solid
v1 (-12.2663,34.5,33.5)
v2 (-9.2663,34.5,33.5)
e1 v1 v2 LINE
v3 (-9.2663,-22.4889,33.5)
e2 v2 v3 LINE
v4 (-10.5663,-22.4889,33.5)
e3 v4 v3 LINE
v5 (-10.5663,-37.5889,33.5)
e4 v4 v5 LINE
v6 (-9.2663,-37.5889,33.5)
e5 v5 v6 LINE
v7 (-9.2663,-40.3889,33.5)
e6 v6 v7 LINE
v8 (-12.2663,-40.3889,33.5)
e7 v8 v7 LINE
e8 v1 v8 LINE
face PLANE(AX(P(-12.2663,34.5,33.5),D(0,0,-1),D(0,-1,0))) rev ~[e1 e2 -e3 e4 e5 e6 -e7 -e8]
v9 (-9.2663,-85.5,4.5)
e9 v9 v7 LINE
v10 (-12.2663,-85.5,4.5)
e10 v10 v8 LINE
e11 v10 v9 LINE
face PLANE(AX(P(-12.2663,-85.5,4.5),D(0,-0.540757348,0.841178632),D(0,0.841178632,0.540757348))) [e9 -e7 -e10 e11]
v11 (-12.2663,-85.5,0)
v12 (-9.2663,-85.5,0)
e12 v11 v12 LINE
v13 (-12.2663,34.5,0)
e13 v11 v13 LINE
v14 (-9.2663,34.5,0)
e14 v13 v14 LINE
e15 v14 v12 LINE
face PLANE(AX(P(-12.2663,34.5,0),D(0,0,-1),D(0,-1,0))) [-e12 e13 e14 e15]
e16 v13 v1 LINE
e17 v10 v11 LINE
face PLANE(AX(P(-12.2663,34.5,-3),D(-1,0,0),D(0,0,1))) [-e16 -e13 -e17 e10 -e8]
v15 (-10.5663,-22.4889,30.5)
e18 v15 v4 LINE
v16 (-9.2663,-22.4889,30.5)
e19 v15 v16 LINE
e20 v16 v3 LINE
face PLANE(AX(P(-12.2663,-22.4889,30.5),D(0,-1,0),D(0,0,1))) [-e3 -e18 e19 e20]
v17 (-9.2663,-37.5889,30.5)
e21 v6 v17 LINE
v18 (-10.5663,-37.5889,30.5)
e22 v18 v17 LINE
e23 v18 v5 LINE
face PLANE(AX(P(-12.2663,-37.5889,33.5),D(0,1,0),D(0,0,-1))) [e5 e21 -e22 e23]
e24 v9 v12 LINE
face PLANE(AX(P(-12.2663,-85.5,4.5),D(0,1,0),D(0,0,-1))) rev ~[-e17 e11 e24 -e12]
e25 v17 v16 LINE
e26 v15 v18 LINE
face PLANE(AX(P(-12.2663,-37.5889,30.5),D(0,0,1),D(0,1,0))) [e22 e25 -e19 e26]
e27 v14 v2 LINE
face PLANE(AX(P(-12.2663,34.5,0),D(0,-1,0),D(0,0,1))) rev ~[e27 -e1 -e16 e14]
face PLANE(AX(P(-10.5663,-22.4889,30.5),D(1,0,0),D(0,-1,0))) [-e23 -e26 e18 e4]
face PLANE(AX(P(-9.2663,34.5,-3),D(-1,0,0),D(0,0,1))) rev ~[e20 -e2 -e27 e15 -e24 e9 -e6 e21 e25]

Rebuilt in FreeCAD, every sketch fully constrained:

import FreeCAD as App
import Part
import Sketcher

V = App.Vector


def add_polygon(sketch, points):
    """Adds a closed chain of lines whose ends are joined by coincident constraints."""
    first, n = sketch.GeometryCount, len(points)
    for a, b in zip(points, points[1:] + points[:1]):
        sketch.addGeometry(Part.LineSegment(App.Vector(*a, 0), App.Vector(*b, 0)), False)
    for i in range(n):
        sketch.addConstraint(Sketcher.Constraint("Coincident", first + i, 2, first + (i + 1) % n, 1))

doc = App.newDocument("Part")
body = doc.addObject("PartDesign::Body", "Body")

# Sketch on YZ plane
sketch1 = body.newObject("Sketcher::SketchObject", "Sketch")
sketch1.AttachmentSupport = (doc.getObject("YZ_Plane"), [""])
sketch1.MapMode = "FlatFace"
sketch1.AttachmentOffset = App.Placement(V(0, 0, -12.2663), App.Rotation())
add_polygon(sketch1, [(34.5, 33.5), (34.5, 0), (-85.5, 0), (-85.5, 4.5), (-40.3889, 33.5), (-37.5889, 33.5), (-37.5889, 30.5), (-22.4889, 30.5), (-22.4889, 33.5)])  # lines 0-8
sketch1.addConstraint(Sketcher.Constraint("Vertical", 0))
sketch1.addConstraint(Sketcher.Constraint("Horizontal", 1))
sketch1.addConstraint(Sketcher.Constraint("Vertical", 2))
sketch1.addConstraint(Sketcher.Constraint("Horizontal", 4))
sketch1.addConstraint(Sketcher.Constraint("Vertical", 5))
sketch1.addConstraint(Sketcher.Constraint("Horizontal", 6))
sketch1.addConstraint(Sketcher.Constraint("Vertical", 7))
sketch1.addConstraint(Sketcher.Constraint("Horizontal", 8))
sketch1.addConstraint(Sketcher.Constraint("PointOnObject", 0, 2, -1))
sketch1.addConstraint(Sketcher.Constraint("Horizontal", 4, 2, 7, 2))
sketch1.addConstraint(Sketcher.Constraint("DistanceY", 5, 2, 5, 1, 3.0))
sketch1.addConstraint(Sketcher.Constraint("DistanceX", 4, 1, 4, 2, 2.8))
sketch1.addConstraint(Sketcher.Constraint("DistanceX", 6, 1, 6, 2, 15.1))
sketch1.addConstraint(Sketcher.Constraint("DistanceX", 1, 2, 1, 1, 120.0))
sketch1.addConstraint(Sketcher.Constraint("DistanceY", 0, 2, 0, 1, 33.5))
sketch1.addConstraint(Sketcher.Constraint("DistanceY", 2, 1, 2, 2, 4.5))
sketch1.addConstraint(Sketcher.Constraint("DistanceX", -1, 1, 0, 2, 34.5))
sketch1.addConstraint(Sketcher.Constraint("DistanceX", 8, 1, 8, 2, 56.989))
pad1 = body.newObject("PartDesign::Pad", "Pad")
pad1.Profile = sketch1
pad1.Length = 3

# Sketch on XY plane
sketch2 = body.newObject("Sketcher::SketchObject", "Sketch001")
sketch2.AttachmentSupport = (doc.getObject("XY_Plane"), [""])
sketch2.MapMode = "FlatFace"
sketch2.AttachmentOffset = App.Placement(V(0, 0, 30.5), App.Rotation())
add_polygon(sketch2, [(-12.2663, -22.4889), (-12.2663, -37.5889), (-10.5663, -37.5889), (-10.5663, -22.4889)])  # lines 0-3
sketch2.addConstraint(Sketcher.Constraint("Vertical", 0))
sketch2.addConstraint(Sketcher.Constraint("Horizontal", 1))
sketch2.addConstraint(Sketcher.Constraint("Vertical", 2))
sketch2.addConstraint(Sketcher.Constraint("Horizontal", 3))
sketch2.addConstraint(Sketcher.Constraint("DistanceX", 1, 1, 1, 2, 1.7))
sketch2.addConstraint(Sketcher.Constraint("DistanceY", 0, 2, 0, 1, 15.1))
sketch2.addConstraint(Sketcher.Constraint("DistanceY", 0, 2, -1, 1, 37.589))
sketch2.addConstraint(Sketcher.Constraint("DistanceX", 0, 2, -1, 1, 12.2663))
pad2 = body.newObject("PartDesign::Pad", "Pad001")
pad2.Profile = sketch2
pad2.Length = 3

doc.recompute()
